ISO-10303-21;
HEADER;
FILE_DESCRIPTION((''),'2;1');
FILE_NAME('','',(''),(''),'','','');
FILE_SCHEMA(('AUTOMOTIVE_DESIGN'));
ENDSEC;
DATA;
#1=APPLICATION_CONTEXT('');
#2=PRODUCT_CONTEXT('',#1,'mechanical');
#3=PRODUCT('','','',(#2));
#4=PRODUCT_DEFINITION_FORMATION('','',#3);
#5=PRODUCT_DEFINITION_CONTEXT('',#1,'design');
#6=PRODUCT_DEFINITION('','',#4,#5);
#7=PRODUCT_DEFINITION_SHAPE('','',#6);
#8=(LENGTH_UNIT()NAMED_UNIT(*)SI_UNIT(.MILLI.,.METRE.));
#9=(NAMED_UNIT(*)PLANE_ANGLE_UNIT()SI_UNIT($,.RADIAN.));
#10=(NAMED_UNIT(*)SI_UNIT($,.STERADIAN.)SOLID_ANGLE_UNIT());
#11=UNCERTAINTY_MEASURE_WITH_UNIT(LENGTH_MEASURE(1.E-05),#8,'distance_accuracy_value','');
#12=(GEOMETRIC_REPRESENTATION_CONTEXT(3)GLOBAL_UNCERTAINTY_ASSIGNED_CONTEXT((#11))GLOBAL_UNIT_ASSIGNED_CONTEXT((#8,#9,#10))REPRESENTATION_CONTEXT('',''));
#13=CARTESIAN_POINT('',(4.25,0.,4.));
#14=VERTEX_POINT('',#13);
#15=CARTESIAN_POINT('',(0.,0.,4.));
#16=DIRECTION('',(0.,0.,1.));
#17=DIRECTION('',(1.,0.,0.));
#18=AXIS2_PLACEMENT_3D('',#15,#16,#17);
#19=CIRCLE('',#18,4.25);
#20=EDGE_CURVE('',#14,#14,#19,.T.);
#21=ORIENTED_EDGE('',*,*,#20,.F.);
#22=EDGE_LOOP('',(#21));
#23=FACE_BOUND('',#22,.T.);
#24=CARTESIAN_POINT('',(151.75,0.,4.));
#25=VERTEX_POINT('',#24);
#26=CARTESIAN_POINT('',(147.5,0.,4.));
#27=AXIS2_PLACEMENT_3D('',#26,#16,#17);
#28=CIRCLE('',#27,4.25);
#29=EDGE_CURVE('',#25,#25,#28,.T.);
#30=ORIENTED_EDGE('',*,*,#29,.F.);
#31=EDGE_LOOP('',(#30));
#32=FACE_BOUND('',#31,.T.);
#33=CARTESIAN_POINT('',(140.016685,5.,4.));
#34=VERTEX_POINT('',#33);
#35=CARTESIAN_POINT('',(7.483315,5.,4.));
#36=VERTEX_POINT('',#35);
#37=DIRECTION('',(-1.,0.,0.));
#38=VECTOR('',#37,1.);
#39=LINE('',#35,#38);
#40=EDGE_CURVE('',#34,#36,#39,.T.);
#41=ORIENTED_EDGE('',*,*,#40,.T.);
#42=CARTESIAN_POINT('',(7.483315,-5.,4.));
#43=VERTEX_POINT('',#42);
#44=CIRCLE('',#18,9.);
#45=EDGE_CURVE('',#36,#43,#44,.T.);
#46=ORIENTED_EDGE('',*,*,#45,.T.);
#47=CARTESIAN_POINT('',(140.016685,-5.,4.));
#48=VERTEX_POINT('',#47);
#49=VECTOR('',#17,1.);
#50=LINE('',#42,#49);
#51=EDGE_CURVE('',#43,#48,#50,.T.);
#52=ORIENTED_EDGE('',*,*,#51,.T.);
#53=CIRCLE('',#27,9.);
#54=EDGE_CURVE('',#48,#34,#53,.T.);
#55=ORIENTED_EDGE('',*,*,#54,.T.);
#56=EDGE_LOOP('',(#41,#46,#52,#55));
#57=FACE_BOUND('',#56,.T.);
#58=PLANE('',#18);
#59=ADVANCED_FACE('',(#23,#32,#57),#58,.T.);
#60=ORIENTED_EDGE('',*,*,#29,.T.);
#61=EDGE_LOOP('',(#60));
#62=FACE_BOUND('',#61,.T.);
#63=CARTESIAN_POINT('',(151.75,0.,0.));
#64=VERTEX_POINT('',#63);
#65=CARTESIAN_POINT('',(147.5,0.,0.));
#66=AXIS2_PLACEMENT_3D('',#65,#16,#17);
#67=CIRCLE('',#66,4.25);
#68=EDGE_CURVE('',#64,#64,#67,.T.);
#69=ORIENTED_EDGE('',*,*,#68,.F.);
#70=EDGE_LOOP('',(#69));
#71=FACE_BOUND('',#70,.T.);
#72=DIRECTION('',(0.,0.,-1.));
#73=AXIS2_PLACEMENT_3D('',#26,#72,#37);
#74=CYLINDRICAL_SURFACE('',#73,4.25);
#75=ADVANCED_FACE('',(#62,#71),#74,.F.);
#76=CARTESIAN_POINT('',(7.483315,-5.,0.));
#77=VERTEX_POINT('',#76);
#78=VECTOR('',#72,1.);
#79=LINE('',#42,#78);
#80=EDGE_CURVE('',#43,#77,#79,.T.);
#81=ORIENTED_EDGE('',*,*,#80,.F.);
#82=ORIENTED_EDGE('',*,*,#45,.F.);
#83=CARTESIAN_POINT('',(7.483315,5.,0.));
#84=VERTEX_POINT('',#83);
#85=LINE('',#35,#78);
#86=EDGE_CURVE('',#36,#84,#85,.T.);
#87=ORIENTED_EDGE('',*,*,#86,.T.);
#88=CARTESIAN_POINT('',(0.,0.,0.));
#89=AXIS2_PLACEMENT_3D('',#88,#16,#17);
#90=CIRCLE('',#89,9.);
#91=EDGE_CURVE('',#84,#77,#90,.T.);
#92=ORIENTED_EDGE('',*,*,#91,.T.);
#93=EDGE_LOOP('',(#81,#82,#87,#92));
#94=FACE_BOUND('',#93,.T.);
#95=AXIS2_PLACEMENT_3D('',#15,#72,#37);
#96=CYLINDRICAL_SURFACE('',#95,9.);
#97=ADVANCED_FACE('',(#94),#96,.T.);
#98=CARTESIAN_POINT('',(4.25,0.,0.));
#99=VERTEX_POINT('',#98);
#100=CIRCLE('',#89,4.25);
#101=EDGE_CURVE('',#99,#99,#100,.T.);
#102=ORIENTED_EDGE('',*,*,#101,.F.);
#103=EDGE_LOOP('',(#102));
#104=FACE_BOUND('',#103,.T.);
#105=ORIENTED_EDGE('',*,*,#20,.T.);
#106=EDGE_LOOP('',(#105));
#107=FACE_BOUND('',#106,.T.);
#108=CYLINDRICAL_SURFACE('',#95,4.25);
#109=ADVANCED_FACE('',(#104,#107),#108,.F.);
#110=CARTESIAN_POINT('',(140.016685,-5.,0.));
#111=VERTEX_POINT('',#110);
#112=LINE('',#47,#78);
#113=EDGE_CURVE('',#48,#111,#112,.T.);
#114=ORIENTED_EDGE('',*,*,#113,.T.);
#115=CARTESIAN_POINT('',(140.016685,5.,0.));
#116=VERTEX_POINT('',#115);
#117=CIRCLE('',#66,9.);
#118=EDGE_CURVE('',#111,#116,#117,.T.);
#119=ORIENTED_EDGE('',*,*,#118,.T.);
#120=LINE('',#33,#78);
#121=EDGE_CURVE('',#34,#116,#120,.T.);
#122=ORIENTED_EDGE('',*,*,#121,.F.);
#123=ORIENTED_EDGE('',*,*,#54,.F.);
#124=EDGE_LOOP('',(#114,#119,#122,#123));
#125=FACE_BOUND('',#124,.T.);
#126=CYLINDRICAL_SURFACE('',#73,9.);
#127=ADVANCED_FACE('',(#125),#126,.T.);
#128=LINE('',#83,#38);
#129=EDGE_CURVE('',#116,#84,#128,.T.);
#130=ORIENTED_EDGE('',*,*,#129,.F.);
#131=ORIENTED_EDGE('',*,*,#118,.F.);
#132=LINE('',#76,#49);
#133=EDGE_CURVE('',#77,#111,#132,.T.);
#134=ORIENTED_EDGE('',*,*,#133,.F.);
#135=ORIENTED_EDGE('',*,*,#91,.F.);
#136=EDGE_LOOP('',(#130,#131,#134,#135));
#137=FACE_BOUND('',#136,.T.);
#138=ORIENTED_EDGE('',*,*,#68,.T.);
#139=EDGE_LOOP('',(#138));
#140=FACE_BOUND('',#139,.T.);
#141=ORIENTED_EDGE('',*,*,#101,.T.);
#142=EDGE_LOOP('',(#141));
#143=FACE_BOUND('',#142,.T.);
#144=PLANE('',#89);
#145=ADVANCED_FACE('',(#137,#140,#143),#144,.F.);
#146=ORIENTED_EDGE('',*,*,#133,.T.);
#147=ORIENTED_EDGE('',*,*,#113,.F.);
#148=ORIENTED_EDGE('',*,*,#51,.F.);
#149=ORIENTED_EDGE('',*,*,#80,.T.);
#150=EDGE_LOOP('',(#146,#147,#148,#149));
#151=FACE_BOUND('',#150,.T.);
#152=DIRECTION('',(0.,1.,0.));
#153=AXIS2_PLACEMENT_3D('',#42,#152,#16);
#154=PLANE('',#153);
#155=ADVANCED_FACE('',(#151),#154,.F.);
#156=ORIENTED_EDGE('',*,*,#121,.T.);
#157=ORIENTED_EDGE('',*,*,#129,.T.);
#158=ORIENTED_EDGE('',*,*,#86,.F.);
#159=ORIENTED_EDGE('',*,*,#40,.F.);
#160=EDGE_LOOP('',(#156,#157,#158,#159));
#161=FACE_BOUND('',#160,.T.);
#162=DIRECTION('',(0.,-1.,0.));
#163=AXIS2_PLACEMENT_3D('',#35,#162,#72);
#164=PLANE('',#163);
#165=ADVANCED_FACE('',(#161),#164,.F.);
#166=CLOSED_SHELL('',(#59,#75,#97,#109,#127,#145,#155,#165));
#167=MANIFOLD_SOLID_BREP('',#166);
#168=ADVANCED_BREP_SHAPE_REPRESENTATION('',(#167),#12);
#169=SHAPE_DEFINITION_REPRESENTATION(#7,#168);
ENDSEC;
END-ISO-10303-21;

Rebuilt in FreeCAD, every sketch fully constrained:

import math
import FreeCAD as App
import Part
import Sketcher
from FreeCAD import Vector

doc = App.newDocument("Part")
body = doc.addObject("PartDesign::Body", "Body")

# Sketch on XY plane
sketch1 = body.newObject("Sketcher::SketchObject", "Sketch")
sketch1.AttachmentSupport = (doc.getObject("XY_Plane"), [""])
sketch1.MapMode = "FlatFace"
sketch1.addGeometry([
    Part.LineSegment(Vector(140, 5, 0), Vector(7.5, 5, 0)),  # 0
    Part.ArcOfCircle(Part.Circle(Vector(0, 0, 0), Vector(0, 0, 1), 9), math.radians(34), math.radians(326)),  # 1
    Part.LineSegment(Vector(7.5, -5, 0), Vector(140, -5, 0)),  # 2
    Part.ArcOfCircle(Part.Circle(Vector(147.5, 0, 0), Vector(0, 0, 1), 9), math.radians(-146), math.radians(146)),  # 3
    Part.Circle(Vector(147.5, 0, 0), Vector(0, 0, 1), 4.2),  # 4
    Part.Circle(Vector(0, 0, 0), Vector(0, 0, 1), 4.2),  # 5
], False)
sketch1.addConstraint([
    Sketcher.Constraint("Coincident", 0, 2, 1, 1),
    Sketcher.Constraint("Coincident", 1, 2, 2, 1),
    Sketcher.Constraint("Coincident", 2, 2, 3, 1),
    Sketcher.Constraint("Coincident", 3, 2, 0, 1),
    Sketcher.Constraint("Horizontal", 0),
    Sketcher.Constraint("Horizontal", 2),
    Sketcher.Constraint("Coincident", 1, 3, -1, 1),
    Sketcher.Constraint("Coincident", 5, 3, -1, 1),
    Sketcher.Constraint("Coincident", 4, 3, 3, 3),
    Sketcher.Constraint("Equal", 1, 3),
    Sketcher.Constraint("Equal", 4, 5),
    Sketcher.Constraint("Symmetric", 2, 2, 3, 2, -1),
    Sketcher.Constraint("Radius", 1, 9.0),
    Sketcher.Constraint("Diameter", 4, 8.5),
    Sketcher.Constraint("DistanceY", -1, 1, 0, 2, 5.0),
    Sketcher.Constraint("DistanceX", -1, 1, 3, 3, 147.5),
])
pad1 = body.newObject("PartDesign::Pad", "Pad")
pad1.Profile = sketch1
pad1.Length = 4

doc.recompute()
